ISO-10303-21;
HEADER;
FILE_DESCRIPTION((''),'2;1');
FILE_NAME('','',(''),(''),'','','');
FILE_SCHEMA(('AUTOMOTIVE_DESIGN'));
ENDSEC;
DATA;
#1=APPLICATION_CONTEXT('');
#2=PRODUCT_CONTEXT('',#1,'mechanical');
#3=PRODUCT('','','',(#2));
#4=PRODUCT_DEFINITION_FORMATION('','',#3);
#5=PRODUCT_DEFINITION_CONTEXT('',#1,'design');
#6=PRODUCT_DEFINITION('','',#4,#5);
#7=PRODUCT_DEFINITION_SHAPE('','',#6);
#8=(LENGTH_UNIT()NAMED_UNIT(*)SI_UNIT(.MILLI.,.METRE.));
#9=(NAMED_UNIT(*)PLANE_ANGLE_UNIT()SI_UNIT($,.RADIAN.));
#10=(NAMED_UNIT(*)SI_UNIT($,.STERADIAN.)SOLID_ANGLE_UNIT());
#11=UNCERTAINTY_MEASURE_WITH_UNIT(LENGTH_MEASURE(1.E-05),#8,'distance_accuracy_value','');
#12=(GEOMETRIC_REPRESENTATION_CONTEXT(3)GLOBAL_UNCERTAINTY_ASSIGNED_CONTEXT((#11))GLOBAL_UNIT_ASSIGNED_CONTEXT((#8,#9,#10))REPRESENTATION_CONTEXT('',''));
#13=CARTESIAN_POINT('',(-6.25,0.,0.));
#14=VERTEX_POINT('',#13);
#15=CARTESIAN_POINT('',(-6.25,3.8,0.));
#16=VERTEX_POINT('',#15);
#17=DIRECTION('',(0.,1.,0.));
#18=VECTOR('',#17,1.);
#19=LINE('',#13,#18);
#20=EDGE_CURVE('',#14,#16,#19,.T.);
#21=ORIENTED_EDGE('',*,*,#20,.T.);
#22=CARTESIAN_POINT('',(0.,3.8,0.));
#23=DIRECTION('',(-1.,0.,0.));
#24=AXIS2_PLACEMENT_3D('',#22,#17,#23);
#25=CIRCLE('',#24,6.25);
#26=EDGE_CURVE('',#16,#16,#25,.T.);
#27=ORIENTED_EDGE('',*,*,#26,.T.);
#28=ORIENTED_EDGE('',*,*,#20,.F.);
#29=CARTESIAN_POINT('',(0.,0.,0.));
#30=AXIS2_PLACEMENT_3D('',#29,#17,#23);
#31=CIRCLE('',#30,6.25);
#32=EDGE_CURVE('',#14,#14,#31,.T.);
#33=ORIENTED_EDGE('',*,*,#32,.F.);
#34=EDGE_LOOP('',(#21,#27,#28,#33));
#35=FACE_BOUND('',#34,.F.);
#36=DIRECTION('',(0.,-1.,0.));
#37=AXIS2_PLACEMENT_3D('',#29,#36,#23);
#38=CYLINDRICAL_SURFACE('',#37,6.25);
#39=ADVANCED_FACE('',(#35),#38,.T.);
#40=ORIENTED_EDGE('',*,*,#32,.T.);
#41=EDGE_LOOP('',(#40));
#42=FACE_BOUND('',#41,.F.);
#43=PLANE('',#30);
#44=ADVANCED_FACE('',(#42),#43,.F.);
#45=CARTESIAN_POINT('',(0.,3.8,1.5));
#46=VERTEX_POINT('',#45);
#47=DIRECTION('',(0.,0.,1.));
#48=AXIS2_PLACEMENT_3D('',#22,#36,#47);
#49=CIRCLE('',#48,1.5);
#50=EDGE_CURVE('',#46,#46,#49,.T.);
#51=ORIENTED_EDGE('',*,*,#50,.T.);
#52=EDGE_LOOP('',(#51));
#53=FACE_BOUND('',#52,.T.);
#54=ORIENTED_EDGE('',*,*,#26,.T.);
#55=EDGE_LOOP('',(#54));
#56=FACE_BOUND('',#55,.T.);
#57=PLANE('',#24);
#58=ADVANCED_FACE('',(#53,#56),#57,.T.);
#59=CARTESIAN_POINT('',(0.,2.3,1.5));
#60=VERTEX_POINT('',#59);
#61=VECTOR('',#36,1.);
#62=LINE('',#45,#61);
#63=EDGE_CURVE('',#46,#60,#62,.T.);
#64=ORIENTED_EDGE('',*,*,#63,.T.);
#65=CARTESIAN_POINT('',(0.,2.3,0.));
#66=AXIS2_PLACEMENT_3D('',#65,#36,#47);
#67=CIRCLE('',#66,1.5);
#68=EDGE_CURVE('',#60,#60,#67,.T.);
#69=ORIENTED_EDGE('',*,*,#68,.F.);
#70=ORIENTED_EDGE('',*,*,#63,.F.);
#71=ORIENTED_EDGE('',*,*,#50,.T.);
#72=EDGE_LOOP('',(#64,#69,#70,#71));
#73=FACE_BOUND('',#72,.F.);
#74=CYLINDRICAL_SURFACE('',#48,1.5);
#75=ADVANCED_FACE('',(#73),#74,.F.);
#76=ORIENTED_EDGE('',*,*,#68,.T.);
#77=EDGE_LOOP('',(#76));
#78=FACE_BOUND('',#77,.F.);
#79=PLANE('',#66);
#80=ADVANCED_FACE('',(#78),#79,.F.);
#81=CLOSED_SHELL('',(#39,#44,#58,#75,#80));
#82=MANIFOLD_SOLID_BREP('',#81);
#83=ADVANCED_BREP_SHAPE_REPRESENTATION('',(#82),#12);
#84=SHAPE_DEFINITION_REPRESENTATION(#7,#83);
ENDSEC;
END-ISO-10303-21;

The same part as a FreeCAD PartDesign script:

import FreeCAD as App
import Part
import Sketcher

V = App.Vector
Q = App.Units.Quantity

doc = App.newDocument("Part")
body = doc.addObject("PartDesign::Body", "Body")

sketch1 = doc.addObject("Sketcher::SketchObject", "Sketch")
body.addObject(sketch1)
sketch1.AttachmentSupport = (doc.XZ_Plane, [""])
sketch1.MapMode = "FlatFace"
sketch1.addGeometry(Part.Circle(V(0, 0, 0), V(0, 0, 1), 6), False)
sketch1.addConstraint([
    Sketcher.Constraint("Coincident", 0, 3, -1, 1),
    Sketcher.Constraint("Diameter", 0, Q("12.5 mm")),
])
pad1 = doc.addObject("PartDesign::Pad", "Pad")
body.addObject(pad1)
pad1.Profile = sketch1
pad1.Length = 3.8
pad1.Reversed = True

sketch2 = doc.addObject("Sketcher::SketchObject", "Sketch001")
body.addObject(sketch2)
sketch2.AttachmentSupport = (doc.XZ_Plane, [""])
sketch2.MapMode = "FlatFace"
sketch2.AttachmentOffset = App.Placement(V(0, 0, -3.8), App.Rotation())
sketch2.addGeometry(Part.Circle(V(0, 0, 0), V(0, 0, 1), 1.5), False)
sketch2.addConstraint([
    Sketcher.Constraint("Coincident", 0, 3, -1, 1),
    Sketcher.Constraint("Diameter", 0, Q("3 mm")),
])
doc.recompute()
hole = doc.addObject("PartDesign::Hole", "Hole")
body.addObject(hole)
hole.Profile = sketch2
hole.ThreadType = "None"
hole.Diameter = 3
hole.DepthType = "Dimension"
hole.Depth = 1.5
hole.DrillPoint = "Flat"
hole.Reversed = True

doc.recompute()
